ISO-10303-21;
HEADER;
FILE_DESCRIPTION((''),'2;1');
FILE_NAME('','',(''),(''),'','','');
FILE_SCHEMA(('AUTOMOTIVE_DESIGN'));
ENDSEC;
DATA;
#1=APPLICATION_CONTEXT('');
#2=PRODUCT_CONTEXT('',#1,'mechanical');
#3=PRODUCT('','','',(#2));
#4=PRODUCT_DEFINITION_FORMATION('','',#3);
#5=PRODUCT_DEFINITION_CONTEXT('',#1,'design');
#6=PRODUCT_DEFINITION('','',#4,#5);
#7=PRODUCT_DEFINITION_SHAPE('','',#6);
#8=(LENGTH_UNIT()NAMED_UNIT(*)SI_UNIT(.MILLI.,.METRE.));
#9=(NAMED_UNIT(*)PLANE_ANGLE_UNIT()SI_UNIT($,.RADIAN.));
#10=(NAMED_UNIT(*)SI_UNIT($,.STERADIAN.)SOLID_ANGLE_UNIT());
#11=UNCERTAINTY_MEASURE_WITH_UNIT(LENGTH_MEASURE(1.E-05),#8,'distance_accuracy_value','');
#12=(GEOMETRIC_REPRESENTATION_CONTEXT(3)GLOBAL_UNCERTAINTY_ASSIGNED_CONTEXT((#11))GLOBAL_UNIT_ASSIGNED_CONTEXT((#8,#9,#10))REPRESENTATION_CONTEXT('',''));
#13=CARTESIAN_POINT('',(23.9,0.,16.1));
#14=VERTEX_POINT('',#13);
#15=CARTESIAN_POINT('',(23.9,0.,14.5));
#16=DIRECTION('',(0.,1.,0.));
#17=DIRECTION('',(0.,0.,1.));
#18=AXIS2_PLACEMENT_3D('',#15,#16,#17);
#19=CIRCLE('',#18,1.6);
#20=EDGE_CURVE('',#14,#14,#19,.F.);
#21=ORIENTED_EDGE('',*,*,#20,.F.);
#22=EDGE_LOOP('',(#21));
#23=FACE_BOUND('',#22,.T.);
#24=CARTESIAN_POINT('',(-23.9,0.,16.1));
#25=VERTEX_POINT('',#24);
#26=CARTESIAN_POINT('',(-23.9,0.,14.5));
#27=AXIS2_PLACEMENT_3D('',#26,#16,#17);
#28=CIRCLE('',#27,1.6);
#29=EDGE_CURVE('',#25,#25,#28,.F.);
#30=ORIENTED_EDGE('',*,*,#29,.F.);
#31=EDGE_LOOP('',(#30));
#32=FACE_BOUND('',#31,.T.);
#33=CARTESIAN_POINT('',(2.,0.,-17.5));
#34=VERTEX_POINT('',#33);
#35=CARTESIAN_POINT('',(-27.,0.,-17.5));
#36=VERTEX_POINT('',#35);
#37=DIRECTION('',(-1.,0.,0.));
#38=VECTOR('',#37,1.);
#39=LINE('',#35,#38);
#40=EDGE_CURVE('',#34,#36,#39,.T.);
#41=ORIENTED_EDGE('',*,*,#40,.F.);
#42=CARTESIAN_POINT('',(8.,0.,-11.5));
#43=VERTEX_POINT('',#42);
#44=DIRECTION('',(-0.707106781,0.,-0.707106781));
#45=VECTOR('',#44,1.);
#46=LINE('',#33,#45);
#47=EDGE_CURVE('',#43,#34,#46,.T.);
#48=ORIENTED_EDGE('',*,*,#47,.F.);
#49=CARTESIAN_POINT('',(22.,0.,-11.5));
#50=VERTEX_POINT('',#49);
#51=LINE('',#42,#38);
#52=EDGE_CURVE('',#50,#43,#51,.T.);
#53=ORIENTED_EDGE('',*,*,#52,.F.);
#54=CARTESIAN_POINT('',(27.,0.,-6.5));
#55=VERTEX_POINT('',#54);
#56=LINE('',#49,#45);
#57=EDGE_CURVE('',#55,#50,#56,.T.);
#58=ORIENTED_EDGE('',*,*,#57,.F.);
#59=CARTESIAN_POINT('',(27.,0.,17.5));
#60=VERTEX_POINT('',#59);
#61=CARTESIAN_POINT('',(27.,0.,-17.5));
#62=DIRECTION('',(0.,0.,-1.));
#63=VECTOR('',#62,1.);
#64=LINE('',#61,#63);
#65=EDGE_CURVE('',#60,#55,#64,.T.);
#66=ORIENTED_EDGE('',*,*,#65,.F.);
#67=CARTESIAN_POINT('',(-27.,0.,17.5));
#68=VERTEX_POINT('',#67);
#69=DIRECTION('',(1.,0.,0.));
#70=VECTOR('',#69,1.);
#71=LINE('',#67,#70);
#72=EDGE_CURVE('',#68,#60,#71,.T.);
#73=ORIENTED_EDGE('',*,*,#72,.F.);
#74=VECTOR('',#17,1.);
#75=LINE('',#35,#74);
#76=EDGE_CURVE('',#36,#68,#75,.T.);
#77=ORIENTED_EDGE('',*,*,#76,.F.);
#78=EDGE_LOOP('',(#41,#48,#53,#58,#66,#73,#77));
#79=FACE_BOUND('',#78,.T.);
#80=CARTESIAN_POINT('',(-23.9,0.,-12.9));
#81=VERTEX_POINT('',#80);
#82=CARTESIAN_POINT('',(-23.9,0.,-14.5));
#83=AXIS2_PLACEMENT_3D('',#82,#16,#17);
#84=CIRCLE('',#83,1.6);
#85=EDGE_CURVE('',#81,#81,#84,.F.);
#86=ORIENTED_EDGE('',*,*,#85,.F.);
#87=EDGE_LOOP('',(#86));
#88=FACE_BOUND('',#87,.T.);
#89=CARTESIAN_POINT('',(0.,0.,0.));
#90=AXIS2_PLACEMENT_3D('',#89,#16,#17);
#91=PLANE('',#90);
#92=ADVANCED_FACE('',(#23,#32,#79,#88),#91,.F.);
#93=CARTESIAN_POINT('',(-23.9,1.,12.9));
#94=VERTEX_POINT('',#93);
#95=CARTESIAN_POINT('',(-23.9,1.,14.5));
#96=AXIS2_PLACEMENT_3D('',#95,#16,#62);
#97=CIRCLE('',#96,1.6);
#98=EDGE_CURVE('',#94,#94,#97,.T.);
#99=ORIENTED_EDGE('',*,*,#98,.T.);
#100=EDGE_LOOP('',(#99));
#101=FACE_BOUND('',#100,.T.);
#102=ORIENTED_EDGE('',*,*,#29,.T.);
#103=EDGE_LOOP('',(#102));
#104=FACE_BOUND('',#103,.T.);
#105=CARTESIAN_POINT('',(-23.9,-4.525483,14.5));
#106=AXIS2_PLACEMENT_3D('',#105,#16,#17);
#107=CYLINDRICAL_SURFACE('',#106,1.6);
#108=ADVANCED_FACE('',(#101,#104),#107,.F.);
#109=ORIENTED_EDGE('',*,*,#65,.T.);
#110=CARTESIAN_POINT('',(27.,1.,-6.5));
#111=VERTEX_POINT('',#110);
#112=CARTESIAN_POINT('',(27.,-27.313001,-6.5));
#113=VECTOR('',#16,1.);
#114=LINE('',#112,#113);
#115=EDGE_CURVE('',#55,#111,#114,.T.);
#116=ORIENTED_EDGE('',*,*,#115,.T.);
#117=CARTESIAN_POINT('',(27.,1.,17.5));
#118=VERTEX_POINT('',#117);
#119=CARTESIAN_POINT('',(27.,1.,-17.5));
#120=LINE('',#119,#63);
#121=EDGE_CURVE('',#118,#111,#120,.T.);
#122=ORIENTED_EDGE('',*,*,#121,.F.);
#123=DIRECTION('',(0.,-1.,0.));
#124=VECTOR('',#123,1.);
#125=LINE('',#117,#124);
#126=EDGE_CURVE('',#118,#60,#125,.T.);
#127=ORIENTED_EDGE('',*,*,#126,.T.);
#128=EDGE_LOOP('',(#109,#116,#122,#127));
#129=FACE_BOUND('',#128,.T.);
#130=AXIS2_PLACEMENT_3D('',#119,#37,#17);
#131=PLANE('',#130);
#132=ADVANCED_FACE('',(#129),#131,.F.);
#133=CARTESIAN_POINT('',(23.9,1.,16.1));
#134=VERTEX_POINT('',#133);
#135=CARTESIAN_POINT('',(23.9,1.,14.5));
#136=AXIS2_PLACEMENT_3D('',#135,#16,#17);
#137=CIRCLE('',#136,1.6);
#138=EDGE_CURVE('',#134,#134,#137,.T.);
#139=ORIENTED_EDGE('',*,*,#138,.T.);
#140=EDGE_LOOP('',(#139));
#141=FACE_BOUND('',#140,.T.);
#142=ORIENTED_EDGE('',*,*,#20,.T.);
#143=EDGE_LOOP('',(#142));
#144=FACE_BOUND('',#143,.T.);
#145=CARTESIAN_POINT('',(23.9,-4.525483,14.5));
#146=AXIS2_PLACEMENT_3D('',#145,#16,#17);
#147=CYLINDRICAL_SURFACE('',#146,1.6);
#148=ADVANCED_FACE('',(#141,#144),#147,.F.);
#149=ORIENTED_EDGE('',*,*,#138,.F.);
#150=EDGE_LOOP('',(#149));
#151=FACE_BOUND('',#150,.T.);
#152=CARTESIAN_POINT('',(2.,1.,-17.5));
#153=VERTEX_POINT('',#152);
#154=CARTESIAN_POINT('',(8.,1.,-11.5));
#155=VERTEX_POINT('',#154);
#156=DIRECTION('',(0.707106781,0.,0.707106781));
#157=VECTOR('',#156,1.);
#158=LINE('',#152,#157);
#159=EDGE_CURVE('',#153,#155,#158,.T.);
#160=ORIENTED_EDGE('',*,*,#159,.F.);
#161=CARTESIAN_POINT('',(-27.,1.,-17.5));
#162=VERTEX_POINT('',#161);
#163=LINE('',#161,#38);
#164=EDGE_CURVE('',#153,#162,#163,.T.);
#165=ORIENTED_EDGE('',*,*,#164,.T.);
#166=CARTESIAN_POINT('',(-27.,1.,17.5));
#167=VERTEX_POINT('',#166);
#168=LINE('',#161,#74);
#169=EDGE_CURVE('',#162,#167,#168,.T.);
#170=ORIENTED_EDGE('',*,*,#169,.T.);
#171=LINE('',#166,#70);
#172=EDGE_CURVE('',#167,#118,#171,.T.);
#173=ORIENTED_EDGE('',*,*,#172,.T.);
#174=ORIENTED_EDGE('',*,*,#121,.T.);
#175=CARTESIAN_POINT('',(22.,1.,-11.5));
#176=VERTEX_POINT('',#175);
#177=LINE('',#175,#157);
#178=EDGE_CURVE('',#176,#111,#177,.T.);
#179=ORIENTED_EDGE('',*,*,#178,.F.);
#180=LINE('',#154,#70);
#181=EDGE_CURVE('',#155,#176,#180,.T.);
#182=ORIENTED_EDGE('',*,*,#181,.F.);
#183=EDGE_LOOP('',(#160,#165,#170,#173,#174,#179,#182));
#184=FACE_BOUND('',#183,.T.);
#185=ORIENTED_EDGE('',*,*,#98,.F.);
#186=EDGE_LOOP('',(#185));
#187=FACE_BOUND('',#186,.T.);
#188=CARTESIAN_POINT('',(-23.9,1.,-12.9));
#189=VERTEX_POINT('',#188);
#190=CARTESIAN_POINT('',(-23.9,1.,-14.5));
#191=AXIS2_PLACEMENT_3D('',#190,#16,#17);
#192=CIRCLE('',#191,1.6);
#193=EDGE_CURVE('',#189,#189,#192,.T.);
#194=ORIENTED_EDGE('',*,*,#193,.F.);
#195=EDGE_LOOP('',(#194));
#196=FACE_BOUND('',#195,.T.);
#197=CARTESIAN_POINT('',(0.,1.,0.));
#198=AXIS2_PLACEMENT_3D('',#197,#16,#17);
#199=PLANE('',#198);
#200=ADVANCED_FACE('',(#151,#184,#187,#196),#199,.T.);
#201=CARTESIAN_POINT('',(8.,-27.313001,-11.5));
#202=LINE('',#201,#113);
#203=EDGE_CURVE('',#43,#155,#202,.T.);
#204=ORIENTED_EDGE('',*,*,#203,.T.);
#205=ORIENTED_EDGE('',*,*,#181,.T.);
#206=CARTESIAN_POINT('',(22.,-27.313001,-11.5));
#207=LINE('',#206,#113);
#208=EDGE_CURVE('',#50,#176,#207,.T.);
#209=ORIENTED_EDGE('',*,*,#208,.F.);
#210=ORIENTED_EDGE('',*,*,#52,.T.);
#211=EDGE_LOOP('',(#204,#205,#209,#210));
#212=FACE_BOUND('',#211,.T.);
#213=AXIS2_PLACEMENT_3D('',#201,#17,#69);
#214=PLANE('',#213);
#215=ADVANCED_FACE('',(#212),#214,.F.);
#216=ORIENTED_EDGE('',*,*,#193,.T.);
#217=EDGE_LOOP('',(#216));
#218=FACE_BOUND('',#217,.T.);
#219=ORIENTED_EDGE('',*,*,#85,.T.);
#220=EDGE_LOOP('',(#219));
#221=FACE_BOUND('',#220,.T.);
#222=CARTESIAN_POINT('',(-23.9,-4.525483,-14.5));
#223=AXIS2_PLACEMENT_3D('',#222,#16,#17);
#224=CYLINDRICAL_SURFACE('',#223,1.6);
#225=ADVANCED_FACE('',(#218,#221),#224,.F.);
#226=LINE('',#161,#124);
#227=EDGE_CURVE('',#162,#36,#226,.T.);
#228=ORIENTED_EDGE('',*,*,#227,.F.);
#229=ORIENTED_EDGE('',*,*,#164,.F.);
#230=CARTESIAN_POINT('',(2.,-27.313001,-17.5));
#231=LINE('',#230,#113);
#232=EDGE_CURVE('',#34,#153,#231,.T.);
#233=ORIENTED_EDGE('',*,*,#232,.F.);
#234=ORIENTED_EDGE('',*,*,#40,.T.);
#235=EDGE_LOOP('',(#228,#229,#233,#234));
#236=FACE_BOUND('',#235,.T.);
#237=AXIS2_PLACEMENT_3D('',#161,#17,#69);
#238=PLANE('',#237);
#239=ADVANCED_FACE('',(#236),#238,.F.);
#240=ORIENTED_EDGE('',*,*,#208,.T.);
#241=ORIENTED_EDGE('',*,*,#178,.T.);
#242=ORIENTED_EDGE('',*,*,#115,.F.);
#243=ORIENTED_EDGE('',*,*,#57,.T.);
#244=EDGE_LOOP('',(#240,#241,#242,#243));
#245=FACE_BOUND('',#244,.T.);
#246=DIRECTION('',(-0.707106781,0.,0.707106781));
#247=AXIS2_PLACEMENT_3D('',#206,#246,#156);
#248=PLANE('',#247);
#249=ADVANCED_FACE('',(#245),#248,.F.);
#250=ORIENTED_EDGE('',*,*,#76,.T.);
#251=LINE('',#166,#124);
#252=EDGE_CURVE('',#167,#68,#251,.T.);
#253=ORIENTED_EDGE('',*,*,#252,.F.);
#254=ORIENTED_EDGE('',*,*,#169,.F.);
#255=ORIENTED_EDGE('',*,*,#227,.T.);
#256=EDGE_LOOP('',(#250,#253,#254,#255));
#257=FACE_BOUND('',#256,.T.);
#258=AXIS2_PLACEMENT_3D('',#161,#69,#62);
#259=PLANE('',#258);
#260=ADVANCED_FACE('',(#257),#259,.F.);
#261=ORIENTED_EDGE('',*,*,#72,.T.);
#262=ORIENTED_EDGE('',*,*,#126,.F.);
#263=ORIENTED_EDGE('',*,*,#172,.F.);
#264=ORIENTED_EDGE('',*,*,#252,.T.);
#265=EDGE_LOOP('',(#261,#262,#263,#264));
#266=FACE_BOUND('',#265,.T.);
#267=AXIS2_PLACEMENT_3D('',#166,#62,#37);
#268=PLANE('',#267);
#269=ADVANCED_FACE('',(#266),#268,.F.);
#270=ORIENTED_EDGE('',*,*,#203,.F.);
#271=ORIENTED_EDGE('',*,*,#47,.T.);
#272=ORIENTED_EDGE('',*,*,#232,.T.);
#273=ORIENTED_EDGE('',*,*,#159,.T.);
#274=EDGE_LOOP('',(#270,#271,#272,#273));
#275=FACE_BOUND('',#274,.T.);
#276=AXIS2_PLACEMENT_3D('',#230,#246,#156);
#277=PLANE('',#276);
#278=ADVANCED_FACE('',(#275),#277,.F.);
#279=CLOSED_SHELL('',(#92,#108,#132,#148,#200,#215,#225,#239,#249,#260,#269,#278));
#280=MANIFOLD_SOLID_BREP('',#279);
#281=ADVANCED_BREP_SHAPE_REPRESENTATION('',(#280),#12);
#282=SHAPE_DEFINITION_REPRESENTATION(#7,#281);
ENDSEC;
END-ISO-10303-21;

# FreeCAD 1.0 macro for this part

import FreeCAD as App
import Part
import Sketcher

V = App.Vector


def add_polygon(sketch, points):
    """Adds a closed chain of lines whose ends are joined by coincident constraints."""
    first, n = sketch.GeometryCount, len(points)
    for a, b in zip(points, points[1:] + points[:1]):
        sketch.addGeometry(Part.LineSegment(App.Vector(*a, 0), App.Vector(*b, 0)), False)
    for i in range(n):
        sketch.addConstraint(Sketcher.Constraint("Coincident", first + i, 2, first + (i + 1) % n, 1))

doc = App.newDocument("Part")
body = doc.addObject("PartDesign::Body", "Body")

sketch1 = body.newObject("Sketcher::SketchObject", "Sketch")
sketch1.AttachmentSupport = (doc.getObject("XZ_Plane"), [""])
sketch1.MapMode = "FlatFace"
add_polygon(sketch1, [(-27, -18), (-27, 18), (27, 18), (27, -18)])
sketch1.addConstraint([
    Sketcher.Constraint("Vertical", 0),
    Sketcher.Constraint("Horizontal", 1),
    Sketcher.Constraint("Vertical", 2),
    Sketcher.Constraint("Horizontal", 3),
    Sketcher.Constraint("Symmetric", 0, 2, 2, 2, -1, 1),
    Sketcher.Constraint("DistanceX", 1, 1, 1, 2, 54.0),
    Sketcher.Constraint("DistanceY", 0, 1, 0, 2, 35.0),
])
pad1 = body.newObject("PartDesign::Pad", "Pad")
pad1.Profile = sketch1
pad1.Length = 1
pad1.Reversed = True

sketch2 = body.newObject("Sketcher::SketchObject", "Sketch001")
sketch2.AttachmentSupport = (doc.getObject("XZ_Plane"), [""])
sketch2.MapMode = "FlatFace"
sketch2.AttachmentOffset = App.Placement(V(0, 0, -1), App.Rotation())
add_polygon(sketch2, [(2, -18), (8, -12), (22, -12), (27, -6), (27, -18)])
sketch2.addConstraint([
    Sketcher.Constraint("Horizontal", 1),
    Sketcher.Constraint("Vertical", 3),
    Sketcher.Constraint("Horizontal", 4),
    Sketcher.Constraint("Parallel", 0, 2),
    Sketcher.Constraint("DistanceX", 1, 1, 1, 2, 14.0),
    Sketcher.Constraint("DistanceX", 4, 2, 4, 1, 25.0),
    Sketcher.Constraint("DistanceY", 3, 2, 3, 1, 11.0),
    Sketcher.Constraint("DistanceX", -1, 1, 0, 2, 8.0),
    Sketcher.Constraint("DistanceX", -1, 1, 2, 2, 27.0),
    Sketcher.Constraint("DistanceY", 0, 2, -1, 1, 11.5),
])
pocket1 = body.newObject("PartDesign::Pocket", "Pocket")
pocket1.Profile = sketch2
pocket1.Length = 1
pocket1.Reversed = True

sketch3 = body.newObject("Sketcher::SketchObject", "Sketch002")
sketch3.AttachmentSupport = (doc.getObject("XZ_Plane"), [""])
sketch3.MapMode = "FlatFace"
sketch3.AttachmentOffset = App.Placement(V(0, 0, -1), App.Rotation())
sketch3.addGeometry([
    Part.Circle(V(-23.9, -14.5, 0), V(0, 0, 1), 1.6),
    Part.Circle(V(-23.9, 14.5, 0), V(0, 0, 1), 1.6),
    Part.Circle(V(23.9, 14.5, 0), V(0, 0, 1), 1.6),
], False)
sketch3.addConstraint([
    Sketcher.Constraint("Equal", 0, 1),
    Sketcher.Constraint("Equal", 1, 2),
    Sketcher.Constraint("Symmetric", 0, 3, 2, 3, -1, 1),
    Sketcher.Constraint("Symmetric", 1, 3, 2, 3, -2),
    Sketcher.Constraint("Diameter", 0, 3.2),
    Sketcher.Constraint("DistanceY", 0, 3, 1, 3, 29.0),
    Sketcher.Constraint("DistanceX", 0, 3, -1, 1, 23.9),
])
pocket2 = body.newObject("PartDesign::Pocket", "Pocket001")
pocket2.Profile = sketch3
pocket2.Length = 1
pocket2.Reversed = True

doc.recompute()
